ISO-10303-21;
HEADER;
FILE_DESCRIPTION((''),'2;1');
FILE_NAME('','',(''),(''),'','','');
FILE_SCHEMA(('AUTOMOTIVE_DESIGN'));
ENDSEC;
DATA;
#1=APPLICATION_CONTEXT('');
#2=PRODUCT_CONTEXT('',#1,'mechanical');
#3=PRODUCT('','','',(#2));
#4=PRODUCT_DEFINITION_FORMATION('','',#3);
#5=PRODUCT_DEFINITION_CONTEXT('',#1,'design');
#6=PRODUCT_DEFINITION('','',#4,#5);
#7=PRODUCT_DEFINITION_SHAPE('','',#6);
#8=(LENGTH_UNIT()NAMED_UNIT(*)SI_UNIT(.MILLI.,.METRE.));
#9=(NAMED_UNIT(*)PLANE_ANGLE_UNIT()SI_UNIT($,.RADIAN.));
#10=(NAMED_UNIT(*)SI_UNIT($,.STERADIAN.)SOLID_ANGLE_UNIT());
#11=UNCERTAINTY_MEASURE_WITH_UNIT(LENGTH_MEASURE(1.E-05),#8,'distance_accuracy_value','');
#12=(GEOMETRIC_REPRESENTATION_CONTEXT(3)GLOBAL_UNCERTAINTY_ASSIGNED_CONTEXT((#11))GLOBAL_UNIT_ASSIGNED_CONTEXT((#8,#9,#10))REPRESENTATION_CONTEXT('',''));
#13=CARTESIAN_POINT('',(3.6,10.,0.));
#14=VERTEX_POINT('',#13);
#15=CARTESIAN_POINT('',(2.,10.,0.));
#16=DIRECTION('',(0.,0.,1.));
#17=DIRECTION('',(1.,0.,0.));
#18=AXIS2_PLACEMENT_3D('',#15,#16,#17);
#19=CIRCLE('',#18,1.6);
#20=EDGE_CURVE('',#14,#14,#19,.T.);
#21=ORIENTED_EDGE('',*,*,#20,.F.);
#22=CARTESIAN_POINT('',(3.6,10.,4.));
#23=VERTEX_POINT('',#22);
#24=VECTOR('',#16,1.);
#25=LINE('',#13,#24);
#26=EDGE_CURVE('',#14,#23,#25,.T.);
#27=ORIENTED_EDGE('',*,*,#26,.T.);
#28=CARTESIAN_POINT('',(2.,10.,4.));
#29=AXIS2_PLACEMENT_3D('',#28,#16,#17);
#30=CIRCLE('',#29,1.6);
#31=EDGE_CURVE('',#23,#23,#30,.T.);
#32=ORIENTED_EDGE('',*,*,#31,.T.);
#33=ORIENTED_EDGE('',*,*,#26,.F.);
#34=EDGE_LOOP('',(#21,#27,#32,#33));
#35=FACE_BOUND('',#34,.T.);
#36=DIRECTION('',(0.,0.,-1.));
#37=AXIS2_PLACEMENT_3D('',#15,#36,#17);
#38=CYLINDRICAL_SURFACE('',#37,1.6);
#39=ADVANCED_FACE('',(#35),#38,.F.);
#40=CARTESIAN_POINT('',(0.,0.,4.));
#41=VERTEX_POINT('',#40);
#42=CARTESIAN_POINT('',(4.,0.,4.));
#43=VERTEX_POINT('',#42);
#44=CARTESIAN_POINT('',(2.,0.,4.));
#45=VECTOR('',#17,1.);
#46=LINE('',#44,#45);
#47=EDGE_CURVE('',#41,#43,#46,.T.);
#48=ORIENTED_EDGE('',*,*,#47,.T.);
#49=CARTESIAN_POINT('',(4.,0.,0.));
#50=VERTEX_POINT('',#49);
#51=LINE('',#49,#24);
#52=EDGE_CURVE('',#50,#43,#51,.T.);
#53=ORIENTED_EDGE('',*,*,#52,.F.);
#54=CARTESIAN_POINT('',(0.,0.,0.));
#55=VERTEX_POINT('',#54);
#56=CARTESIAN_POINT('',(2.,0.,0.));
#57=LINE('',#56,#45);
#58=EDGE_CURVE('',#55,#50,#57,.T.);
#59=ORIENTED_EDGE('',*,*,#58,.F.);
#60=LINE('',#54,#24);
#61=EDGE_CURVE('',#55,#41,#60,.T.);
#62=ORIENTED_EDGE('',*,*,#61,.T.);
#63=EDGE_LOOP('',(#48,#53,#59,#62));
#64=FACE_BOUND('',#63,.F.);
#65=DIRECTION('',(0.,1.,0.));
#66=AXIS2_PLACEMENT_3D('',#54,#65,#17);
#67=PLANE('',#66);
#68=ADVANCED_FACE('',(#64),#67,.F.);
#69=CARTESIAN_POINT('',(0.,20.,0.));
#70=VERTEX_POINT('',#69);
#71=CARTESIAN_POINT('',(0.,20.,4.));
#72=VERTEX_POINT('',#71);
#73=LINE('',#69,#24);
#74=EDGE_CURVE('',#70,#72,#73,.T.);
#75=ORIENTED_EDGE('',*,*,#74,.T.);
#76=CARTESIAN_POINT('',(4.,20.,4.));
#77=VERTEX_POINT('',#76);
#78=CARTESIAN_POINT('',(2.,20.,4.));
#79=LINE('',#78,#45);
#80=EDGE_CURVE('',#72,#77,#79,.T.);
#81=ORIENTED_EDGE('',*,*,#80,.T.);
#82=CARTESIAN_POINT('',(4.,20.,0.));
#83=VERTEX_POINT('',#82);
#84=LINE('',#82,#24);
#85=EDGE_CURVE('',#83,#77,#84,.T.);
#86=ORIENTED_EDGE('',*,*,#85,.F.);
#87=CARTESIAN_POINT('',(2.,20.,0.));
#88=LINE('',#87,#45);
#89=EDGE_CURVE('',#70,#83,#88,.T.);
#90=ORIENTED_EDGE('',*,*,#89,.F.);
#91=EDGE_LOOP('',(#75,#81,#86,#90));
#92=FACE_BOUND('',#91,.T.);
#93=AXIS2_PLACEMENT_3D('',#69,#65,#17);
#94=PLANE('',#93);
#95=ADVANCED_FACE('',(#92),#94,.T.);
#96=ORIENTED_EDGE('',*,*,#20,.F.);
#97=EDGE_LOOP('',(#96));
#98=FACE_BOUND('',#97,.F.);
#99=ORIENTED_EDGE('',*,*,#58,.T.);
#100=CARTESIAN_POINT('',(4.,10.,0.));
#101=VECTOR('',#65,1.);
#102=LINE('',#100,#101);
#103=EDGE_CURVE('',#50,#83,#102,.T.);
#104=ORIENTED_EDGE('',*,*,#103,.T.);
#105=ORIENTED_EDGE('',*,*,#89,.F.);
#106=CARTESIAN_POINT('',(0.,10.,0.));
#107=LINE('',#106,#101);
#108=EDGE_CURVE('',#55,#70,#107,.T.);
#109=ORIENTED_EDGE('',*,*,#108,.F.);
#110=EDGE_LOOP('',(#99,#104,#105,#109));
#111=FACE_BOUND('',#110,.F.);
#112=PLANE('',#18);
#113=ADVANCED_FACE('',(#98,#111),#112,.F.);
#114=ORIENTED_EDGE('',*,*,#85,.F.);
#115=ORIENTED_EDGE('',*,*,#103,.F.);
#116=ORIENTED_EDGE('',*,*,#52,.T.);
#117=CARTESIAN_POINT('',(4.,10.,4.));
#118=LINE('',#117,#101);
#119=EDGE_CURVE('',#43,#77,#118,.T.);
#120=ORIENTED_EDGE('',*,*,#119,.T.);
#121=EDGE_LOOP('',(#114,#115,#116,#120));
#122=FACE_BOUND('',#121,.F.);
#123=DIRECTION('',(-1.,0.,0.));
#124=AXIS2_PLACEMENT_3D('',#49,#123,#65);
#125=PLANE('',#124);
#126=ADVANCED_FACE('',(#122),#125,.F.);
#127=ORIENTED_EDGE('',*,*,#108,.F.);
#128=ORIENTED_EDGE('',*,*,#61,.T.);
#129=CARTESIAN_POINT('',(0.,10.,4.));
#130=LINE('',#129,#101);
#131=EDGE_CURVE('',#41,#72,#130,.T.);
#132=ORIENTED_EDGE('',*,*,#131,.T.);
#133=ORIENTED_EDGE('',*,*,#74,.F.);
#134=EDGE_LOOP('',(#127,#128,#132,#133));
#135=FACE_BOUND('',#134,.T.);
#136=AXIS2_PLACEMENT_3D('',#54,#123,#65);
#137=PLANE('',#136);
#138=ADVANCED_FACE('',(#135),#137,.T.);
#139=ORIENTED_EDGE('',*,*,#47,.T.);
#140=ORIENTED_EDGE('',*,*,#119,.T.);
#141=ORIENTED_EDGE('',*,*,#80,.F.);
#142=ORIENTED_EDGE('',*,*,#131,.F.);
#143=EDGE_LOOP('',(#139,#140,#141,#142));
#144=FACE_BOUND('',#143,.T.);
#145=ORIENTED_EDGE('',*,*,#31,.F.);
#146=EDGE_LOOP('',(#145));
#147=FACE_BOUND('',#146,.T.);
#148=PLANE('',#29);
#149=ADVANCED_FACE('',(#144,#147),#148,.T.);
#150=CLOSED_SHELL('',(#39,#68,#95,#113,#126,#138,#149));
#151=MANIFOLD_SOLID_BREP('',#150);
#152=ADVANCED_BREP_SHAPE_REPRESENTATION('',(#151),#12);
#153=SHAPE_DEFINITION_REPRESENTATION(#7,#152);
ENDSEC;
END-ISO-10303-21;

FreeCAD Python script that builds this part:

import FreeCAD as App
import Part
import Sketcher

V = App.Vector
Q = App.Units.Quantity


def add_polygon(sketch, points):
    """Adds a closed chain of lines whose ends are joined by coincident constraints."""
    first, n = sketch.GeometryCount, len(points)
    for a, b in zip(points, points[1:] + points[:1]):
        sketch.addGeometry(Part.LineSegment(App.Vector(*a, 0), App.Vector(*b, 0)), False)
    for i in range(n):
        sketch.addConstraint(Sketcher.Constraint("Coincident", first + i, 2, first + (i + 1) % n, 1))

doc = App.newDocument("Part")
params = doc.addObject("Spreadsheet::Sheet", "Params")
for row, (alias, value) in enumerate([
    ("sketch1_diameter", "3.2 mm"),
    ("sketch1_width", "4 mm"),
    ("sketch1_height", "20 mm"),
    ("pad1_length", "4 mm"),
], start=1):
    params.set(f"A{row}", alias)
    params.set(f"B{row}", "=" + value)
    params.setAlias(f"B{row}", alias)

body = doc.addObject("PartDesign::Body", "Body")

# Sketch on XY plane
sketch1 = body.newObject("Sketcher::SketchObject", "Sketch")
sketch1.AttachmentSupport = (doc.getObject("XY_Plane"), [""])
sketch1.MapMode = "FlatFace"
add_polygon(sketch1, [(0, 20), (0, 0), (4, 0), (4, 20)])  # lines 0-3
sketch1.addGeometry(Part.Circle(V(2, 10, 0), V(0, 0, 1), 1.6), False)  # 4
sketch1.addConstraint([
    Sketcher.Constraint("Vertical", 0),
    Sketcher.Constraint("Horizontal", 1),
    Sketcher.Constraint("Vertical", 2),
    Sketcher.Constraint("Horizontal", 3),
    Sketcher.Constraint("Coincident", 0, 2, -1, 1),
    Sketcher.Constraint("Diameter", 4, Q("3.2 mm")),
    Sketcher.Constraint("DistanceX", 1, 1, 1, 2, Q("4 mm")),
    Sketcher.Constraint("DistanceY", 0, 2, 0, 1, Q("20 mm")),
    Sketcher.Constraint("DistanceX", -1, 1, 4, 3, Q("2 mm")),
    Sketcher.Constraint("DistanceY", -1, 1, 4, 3, Q("10 mm")),
])
sketch1.setExpression("Constraints[9]", "Params.sketch1_diameter")
sketch1.setExpression("Constraints[10]", "Params.sketch1_width")
sketch1.setExpression("Constraints[11]", "Params.sketch1_height")
pad1 = body.newObject("PartDesign::Pad", "Pad")
pad1.Profile = sketch1
pad1.setExpression("Length", "Params.pad1_length")

doc.recompute()
